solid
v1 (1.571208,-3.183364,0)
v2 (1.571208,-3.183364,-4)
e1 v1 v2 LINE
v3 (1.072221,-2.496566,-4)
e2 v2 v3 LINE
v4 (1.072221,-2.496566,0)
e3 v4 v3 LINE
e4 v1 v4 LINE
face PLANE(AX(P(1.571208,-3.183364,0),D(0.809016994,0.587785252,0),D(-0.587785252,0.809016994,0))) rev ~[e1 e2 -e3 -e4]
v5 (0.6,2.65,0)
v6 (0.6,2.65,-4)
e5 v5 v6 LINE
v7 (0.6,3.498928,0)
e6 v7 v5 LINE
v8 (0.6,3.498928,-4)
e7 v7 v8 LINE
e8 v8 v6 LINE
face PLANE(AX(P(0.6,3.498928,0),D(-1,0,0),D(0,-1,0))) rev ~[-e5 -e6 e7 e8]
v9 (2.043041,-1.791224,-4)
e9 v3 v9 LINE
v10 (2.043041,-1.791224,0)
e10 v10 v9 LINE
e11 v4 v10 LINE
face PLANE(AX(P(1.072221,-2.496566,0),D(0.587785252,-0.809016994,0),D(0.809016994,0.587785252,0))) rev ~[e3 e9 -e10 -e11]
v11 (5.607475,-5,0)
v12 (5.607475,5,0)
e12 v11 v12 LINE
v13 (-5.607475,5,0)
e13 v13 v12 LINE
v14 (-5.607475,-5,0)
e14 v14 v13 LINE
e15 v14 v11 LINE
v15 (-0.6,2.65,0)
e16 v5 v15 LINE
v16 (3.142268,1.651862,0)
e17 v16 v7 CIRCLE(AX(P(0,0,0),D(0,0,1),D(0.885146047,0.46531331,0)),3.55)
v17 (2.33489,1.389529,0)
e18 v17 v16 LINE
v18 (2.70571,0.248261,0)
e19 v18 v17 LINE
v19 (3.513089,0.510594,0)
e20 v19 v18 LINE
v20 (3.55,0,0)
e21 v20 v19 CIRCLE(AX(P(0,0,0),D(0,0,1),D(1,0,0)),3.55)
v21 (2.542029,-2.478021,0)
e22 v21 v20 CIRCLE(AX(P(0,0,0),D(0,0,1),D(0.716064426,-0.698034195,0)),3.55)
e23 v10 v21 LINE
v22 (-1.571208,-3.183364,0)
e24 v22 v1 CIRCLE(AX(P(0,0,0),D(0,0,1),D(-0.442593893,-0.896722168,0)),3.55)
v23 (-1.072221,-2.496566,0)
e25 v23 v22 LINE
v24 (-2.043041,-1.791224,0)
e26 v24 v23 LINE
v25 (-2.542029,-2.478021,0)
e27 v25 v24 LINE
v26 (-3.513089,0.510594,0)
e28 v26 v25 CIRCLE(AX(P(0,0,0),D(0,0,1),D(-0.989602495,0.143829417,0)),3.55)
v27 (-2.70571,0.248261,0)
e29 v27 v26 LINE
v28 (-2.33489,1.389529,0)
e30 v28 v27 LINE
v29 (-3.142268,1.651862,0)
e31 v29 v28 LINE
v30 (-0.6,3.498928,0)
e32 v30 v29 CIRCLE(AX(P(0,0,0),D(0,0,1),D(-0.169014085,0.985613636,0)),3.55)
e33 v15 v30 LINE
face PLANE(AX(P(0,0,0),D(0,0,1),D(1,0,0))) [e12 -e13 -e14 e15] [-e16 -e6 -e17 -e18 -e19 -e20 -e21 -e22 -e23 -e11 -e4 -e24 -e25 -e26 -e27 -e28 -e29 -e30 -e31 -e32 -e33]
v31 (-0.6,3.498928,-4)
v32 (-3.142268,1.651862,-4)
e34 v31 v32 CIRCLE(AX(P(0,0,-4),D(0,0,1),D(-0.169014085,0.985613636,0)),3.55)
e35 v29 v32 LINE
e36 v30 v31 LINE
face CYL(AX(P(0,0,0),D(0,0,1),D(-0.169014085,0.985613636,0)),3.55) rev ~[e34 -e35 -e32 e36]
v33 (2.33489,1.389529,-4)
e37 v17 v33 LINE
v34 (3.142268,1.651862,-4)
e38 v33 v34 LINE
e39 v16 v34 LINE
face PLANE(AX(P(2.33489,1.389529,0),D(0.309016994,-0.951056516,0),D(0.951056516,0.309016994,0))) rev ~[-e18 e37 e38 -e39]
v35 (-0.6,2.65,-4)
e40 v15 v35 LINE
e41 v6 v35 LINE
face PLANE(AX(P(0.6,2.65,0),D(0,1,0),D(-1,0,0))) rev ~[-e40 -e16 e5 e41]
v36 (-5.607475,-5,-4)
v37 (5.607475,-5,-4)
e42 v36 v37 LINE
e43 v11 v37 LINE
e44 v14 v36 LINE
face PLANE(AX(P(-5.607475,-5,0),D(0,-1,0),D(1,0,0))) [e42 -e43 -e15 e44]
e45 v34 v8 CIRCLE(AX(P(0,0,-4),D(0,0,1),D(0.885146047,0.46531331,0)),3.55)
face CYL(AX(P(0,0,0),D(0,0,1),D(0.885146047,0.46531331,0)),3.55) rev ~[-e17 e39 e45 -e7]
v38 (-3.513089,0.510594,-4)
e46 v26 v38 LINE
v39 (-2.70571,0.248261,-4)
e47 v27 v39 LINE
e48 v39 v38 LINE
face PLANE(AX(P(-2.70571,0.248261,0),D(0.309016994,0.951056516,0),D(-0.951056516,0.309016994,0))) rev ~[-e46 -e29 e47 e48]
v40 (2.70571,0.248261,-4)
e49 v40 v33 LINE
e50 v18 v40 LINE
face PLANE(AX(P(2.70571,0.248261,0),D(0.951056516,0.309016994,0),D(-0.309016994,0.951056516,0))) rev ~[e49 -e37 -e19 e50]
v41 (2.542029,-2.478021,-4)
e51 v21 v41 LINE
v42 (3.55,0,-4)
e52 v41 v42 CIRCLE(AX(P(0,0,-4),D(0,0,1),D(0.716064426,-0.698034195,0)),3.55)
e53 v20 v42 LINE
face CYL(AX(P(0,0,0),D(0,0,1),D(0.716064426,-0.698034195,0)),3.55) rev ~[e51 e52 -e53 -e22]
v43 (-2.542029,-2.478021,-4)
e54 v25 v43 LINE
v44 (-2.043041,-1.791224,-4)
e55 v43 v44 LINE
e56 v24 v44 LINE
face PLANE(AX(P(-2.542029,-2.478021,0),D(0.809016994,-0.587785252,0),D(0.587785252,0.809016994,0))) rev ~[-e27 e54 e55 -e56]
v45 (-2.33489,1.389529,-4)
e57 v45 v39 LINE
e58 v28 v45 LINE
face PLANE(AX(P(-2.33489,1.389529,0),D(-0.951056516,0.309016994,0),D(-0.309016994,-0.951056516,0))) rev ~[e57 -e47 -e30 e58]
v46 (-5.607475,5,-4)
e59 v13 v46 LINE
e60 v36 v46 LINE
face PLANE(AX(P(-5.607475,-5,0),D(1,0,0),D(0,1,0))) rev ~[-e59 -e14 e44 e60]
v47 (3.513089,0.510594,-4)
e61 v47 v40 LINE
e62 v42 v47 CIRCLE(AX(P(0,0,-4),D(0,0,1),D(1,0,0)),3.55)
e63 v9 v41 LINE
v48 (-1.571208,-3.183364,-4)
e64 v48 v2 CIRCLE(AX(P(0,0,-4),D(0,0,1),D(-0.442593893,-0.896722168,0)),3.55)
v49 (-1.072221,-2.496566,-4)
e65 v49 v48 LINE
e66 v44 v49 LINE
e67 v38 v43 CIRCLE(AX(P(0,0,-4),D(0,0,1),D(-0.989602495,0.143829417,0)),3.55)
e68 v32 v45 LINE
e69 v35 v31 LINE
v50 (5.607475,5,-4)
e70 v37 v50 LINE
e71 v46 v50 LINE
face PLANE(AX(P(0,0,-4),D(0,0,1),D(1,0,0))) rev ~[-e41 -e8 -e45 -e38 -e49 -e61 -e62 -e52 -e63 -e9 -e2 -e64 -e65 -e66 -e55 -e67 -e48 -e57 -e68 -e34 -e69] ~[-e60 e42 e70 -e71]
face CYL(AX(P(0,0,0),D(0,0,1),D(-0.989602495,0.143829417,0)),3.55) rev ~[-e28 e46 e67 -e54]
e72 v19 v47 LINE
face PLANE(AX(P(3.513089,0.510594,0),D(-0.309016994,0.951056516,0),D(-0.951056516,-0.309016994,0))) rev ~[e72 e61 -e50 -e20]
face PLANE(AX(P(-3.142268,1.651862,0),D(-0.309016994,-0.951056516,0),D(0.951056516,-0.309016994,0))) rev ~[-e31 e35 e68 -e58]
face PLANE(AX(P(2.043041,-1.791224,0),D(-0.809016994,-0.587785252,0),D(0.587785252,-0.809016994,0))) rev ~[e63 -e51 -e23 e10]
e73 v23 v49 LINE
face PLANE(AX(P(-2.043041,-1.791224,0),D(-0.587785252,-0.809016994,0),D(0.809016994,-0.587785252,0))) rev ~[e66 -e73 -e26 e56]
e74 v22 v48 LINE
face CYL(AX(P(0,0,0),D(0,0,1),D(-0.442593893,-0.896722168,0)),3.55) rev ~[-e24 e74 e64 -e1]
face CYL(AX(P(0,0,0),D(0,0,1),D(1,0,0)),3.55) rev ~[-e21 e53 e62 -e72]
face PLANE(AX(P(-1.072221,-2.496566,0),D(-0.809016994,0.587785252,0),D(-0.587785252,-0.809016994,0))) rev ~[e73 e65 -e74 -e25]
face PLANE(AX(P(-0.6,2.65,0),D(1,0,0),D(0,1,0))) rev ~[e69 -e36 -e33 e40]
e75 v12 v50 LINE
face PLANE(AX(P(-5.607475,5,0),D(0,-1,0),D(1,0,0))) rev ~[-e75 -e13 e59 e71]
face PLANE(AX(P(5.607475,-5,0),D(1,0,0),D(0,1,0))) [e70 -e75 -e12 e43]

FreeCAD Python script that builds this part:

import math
import FreeCAD as App
import Part
import Sketcher

V = App.Vector
Q = App.Units.Quantity


def add_polygon(sketch, points):
    """Adds a closed chain of lines whose ends are joined by coincident constraints."""
    first, n = sketch.GeometryCount, len(points)
    for a, b in zip(points, points[1:] + points[:1]):
        sketch.addGeometry(Part.LineSegment(App.Vector(*a, 0), App.Vector(*b, 0)), False)
    for i in range(n):
        sketch.addConstraint(Sketcher.Constraint("Coincident", first + i, 2, first + (i + 1) % n, 1))

doc = App.newDocument("Part")
body = doc.addObject("PartDesign::Body", "Body")

# Sketch on XY plane
sketch1 = doc.addObject("Sketcher::SketchObject", "Sketch")
body.addObject(sketch1)
sketch1.AttachmentSupport = (doc.XY_Plane, [""])
sketch1.MapMode = "FlatFace"
add_polygon(sketch1, [(-5.607475, 5), (-5.607475, -5), (5.607475, -5), (5.607475, 5)])  # lines 0-3
sketch1.addConstraint(Sketcher.Constraint("Vertical", 0))
sketch1.addConstraint(Sketcher.Constraint("Horizontal", 1))
sketch1.addConstraint(Sketcher.Constraint("Vertical", 2))
sketch1.addConstraint(Sketcher.Constraint("Horizontal", 3))
sketch1.addConstraint(Sketcher.Constraint("Symmetric", 0, 2, 2, 2, -1, 1))
sketch1.addConstraint(Sketcher.Constraint("DistanceY", 0, 2, 0, 1, 10.0))
sketch1.addConstraint(Sketcher.Constraint("DistanceX", 1, 1, 1, 2, 11.214951))
pad1 = doc.addObject("PartDesign::Pad", "Pad")
body.addObject(pad1)
pad1.Profile = sketch1
pad1.Length = 4
pad1.Reversed = True

# Sketch on XY plane
sketch2 = doc.addObject("Sketcher::SketchObject", "Sketch001")
body.addObject(sketch2)
sketch2.AttachmentSupport = (doc.XY_Plane, [""])
sketch2.MapMode = "FlatFace"
sketch2.addGeometry(Part.ArcOfCircle(Part.Circle(V(0, 0, 0), V(0, 0, 1), 3.55), math.radians(-44.269499), math.radians(0)), False)
sketch2.addGeometry(Part.ArcOfCircle(Part.Circle(V(0, 0, 0), V(0, 0, 1), 3.55), math.radians(0), math.radians(8.269499)), False)
sketch2.addGeometry(Part.LineSegment(V(3.513089, 0.510594, 0), V(2.70571, 0.248261, 0)), False)
sketch2.addGeometry(Part.LineSegment(V(2.70571, 0.248261, 0), V(2.33489, 1.389529, 0)), False)
sketch2.addGeometry(Part.LineSegment(V(2.33489, 1.389529, 0), V(3.142268, 1.651862, 0)), False)
sketch2.addGeometry(Part.ArcOfCircle(Part.Circle(V(0, 0, 0), V(0, 0, 1), 3.55), math.radians(27.730501), math.radians(80.269499)), False)
sketch2.addGeometry(Part.LineSegment(V(0.6, 3.498928, 0), V(0.6, 2.65, 0)), False)
sketch2.addGeometry(Part.LineSegment(V(0.6, 2.65, 0), V(-0.6, 2.65, 0)), False)
sketch2.addGeometry(Part.LineSegment(V(-0.6, 2.65, 0), V(-0.6, 3.498928, 0)), False)
sketch2.addGeometry(Part.ArcOfCircle(Part.Circle(V(0, 0, 0), V(0, 0, 1), 3.55), math.radians(99.730501), math.radians(152.269499)), False)
sketch2.addGeometry(Part.LineSegment(V(-3.142268, 1.651862, 0), V(-2.33489, 1.389529, 0)), False)
sketch2.addGeometry(Part.LineSegment(V(-2.33489, 1.389529, 0), V(-2.70571, 0.248261, 0)), False)
sketch2.addGeometry(Part.LineSegment(V(-2.70571, 0.248261, 0), V(-3.513089, 0.510594, 0)), False)
sketch2.addGeometry(Part.ArcOfCircle(Part.Circle(V(0, 0, 0), V(0, 0, 1), 3.55), math.radians(171.730501), math.radians(224.269499)), False)
sketch2.addGeometry(Part.LineSegment(V(-2.542029, -2.478021, 0), V(-2.043041, -1.791224, 0)), False)
sketch2.addGeometry(Part.LineSegment(V(-2.043041, -1.791224, 0), V(-1.072221, -2.496566, 0)), False)
sketch2.addGeometry(Part.LineSegment(V(-1.072221, -2.496566, 0), V(-1.571208, -3.183364, 0)), False)
sketch2.addGeometry(Part.ArcOfCircle(Part.Circle(V(0, 0, 0), V(0, 0, 1), 3.55), math.radians(-116.269499), math.radians(-63.730501)), False)
sketch2.addGeometry(Part.LineSegment(V(1.571208, -3.183364, 0), V(1.072221, -2.496566, 0)), False)
sketch2.addGeometry(Part.LineSegment(V(1.072221, -2.496566, 0), V(2.043041, -1.791224, 0)), False)
sketch2.addGeometry(Part.LineSegment(V(2.043041, -1.791224, 0), V(2.542029, -2.478021, 0)), False)
sketch2.addConstraint(Sketcher.Constraint("Tangent", 0, 2, 1, 1))
sketch2.addConstraint(Sketcher.Constraint("Coincident", 1, 2, 2, 1))
sketch2.addConstraint(Sketcher.Constraint("Coincident", 2, 2, 3, 1))
sketch2.addConstraint(Sketcher.Constraint("Coincident", 3, 2, 4, 1))
sketch2.addConstraint(Sketcher.Constraint("Coincident", 4, 2, 5, 1))
sketch2.addConstraint(Sketcher.Constraint("Coincident", 5, 2, 6, 1))
sketch2.addConstraint(Sketcher.Constraint("Coincident", 6, 2, 7, 1))
sketch2.addConstraint(Sketcher.Constraint("Coincident", 7, 2, 8, 1))
sketch2.addConstraint(Sketcher.Constraint("Coincident", 8, 2, 9, 1))
sketch2.addConstraint(Sketcher.Constraint("Coincident", 9, 2, 10, 1))
sketch2.addConstraint(Sketcher.Constraint("Coincident", 10, 2, 11, 1))
sketch2.addConstraint(Sketcher.Constraint("Coincident", 11, 2, 12, 1))
sketch2.addConstraint(Sketcher.Constraint("Coincident", 12, 2, 13, 1))
sketch2.addConstraint(Sketcher.Constraint("Coincident", 13, 2, 14, 1))
sketch2.addConstraint(Sketcher.Constraint("Coincident", 14, 2, 15, 1))
sketch2.addConstraint(Sketcher.Constraint("Coincident", 15, 2, 16, 1))
sketch2.addConstraint(Sketcher.Constraint("Coincident", 16, 2, 17, 1))
sketch2.addConstraint(Sketcher.Constraint("Coincident", 17, 2, 18, 1))
sketch2.addConstraint(Sketcher.Constraint("Coincident", 18, 2, 19, 1))
sketch2.addConstraint(Sketcher.Constraint("Coincident", 19, 2, 20, 1))
sketch2.addConstraint(Sketcher.Constraint("Coincident", 20, 2, 0, 1))
sketch2.addConstraint(Sketcher.Constraint("Vertical", 6))
sketch2.addConstraint(Sketcher.Constraint("Horizontal", 7))
sketch2.addConstraint(Sketcher.Constraint("Vertical", 8))
sketch2.addConstraint(Sketcher.Constraint("Coincident", 0, 3, -1, 1))
sketch2.addConstraint(Sketcher.Constraint("Coincident", 5, 3, -1, 1))
sketch2.addConstraint(Sketcher.Constraint("Coincident", 9, 3, -1, 1))
sketch2.addConstraint(Sketcher.Constraint("Coincident", 13, 3, -1, 1))
sketch2.addConstraint(Sketcher.Constraint("Coincident", 17, 3, -1, 1))
sketch2.addConstraint(Sketcher.Constraint("Equal", 0, 1))
sketch2.addConstraint(Sketcher.Constraint("Equal", 1, 5))
sketch2.addConstraint(Sketcher.Constraint("Equal", 5, 9))
sketch2.addConstraint(Sketcher.Constraint("Equal", 9, 13))
sketch2.addConstraint(Sketcher.Constraint("Equal", 13, 17))
sketch2.addConstraint(Sketcher.Constraint("Symmetric", 3, 2, 10, 2, -2))
sketch2.addConstraint(Sketcher.Constraint("Symmetric", 2, 2, 11, 2, -2))
sketch2.addConstraint(Sketcher.Constraint("Symmetric", 15, 2, 18, 2, -2))
sketch2.addConstraint(Sketcher.Constraint("Symmetric", 14, 2, 19, 2, -2))
sketch2.addConstraint(Sketcher.Constraint("PointOnObject", 0, 2, -1))
sketch2.addConstraint(Sketcher.Constraint("Perpendicular", 2, 3))
sketch2.addConstraint(Sketcher.Constraint("Perpendicular", 3, 4))
sketch2.addConstraint(Sketcher.Constraint("Perpendicular", 10, 11))
sketch2.addConstraint(Sketcher.Constraint("Perpendicular", 11, 12))
sketch2.addConstraint(Sketcher.Constraint("Perpendicular", 14, 15))
sketch2.addConstraint(Sketcher.Constraint("Perpendicular", 15, 16))
sketch2.addConstraint(Sketcher.Constraint("Perpendicular", 18, 19))
sketch2.addConstraint(Sketcher.Constraint("Perpendicular", 19, 20))
sketch2.addConstraint(Sketcher.Constraint("Horizontal", 5, 2, 8, 2))
sketch2.addConstraint(Sketcher.Constraint("Equal", 2, 4))
sketch2.addConstraint(Sketcher.Constraint("Equal", 12, 14))
sketch2.addConstraint(Sketcher.Constraint("Equal", 11, 15))
sketch2.addConstraint(Sketcher.Constraint("Equal", 14, 16))
sketch2.addConstraint(Sketcher.Constraint("Angle", 2, Q("-162 deg")))
sketch2.addConstraint(Sketcher.Constraint("Angle", 14, Q("54 deg")))
sketch2.addConstraint(Sketcher.Constraint("Radius", 0, 3.55))
sketch2.addConstraint(Sketcher.Constraint("DistanceX", 7, 2, 7, 1, 1.2))
sketch2.addConstraint(Sketcher.Constraint("Distance", 3, 1.2))
sketch2.addConstraint(Sketcher.Constraint("DistanceY", -1, 1, 6, 2, 2.65))
sketch2.addConstraint(Sketcher.Constraint("DistanceX", 3, 2, 1, 2, 1.178199))
pocket1 = doc.addObject("PartDesign::Pocket", "Pocket")
body.addObject(pocket1)
pocket1.Profile = sketch2
pocket1.Length = 4

doc.recompute()
